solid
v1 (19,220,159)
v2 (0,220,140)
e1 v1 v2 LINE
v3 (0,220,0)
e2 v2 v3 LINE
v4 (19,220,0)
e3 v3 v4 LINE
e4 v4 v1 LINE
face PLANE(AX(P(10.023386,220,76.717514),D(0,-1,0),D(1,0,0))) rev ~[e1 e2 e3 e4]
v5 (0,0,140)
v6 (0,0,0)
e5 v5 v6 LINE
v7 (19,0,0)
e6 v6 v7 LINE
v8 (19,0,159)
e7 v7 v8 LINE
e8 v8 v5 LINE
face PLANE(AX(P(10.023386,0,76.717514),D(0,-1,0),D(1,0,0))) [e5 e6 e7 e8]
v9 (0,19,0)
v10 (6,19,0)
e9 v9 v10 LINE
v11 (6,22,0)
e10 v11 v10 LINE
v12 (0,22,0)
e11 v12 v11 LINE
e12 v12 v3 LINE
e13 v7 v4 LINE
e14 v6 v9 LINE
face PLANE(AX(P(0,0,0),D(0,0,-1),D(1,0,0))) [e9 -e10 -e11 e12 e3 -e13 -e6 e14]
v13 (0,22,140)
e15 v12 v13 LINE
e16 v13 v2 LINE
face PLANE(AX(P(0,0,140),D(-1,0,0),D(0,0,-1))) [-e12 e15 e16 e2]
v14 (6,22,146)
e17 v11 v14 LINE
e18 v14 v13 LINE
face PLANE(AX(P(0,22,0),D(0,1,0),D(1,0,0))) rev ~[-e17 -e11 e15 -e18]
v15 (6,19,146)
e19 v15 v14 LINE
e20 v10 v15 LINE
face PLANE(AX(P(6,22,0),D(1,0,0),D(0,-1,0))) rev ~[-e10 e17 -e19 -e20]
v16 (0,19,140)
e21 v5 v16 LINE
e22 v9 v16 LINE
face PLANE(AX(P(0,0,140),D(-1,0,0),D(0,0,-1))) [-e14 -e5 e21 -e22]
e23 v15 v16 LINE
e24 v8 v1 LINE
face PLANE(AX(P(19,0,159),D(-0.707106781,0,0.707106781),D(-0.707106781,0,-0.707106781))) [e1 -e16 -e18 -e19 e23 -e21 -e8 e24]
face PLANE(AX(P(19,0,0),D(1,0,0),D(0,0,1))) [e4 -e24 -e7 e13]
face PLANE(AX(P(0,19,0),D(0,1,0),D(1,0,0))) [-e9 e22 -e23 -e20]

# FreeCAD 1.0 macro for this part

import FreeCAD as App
import Part
import Sketcher
from FreeCAD import Vector
Q = App.Units.Quantity


def add_polygon(sketch, points):
    """Adds a closed chain of lines whose ends are joined by coincident constraints."""
    first, n = sketch.GeometryCount, len(points)
    for a, b in zip(points, points[1:] + points[:1]):
        sketch.addGeometry(Part.LineSegment(App.Vector(*a, 0), App.Vector(*b, 0)), False)
    for i in range(n):
        sketch.addConstraint(Sketcher.Constraint("Coincident", first + i, 2, first + (i + 1) % n, 1))

doc = App.newDocument("Part")
body = doc.addObject("PartDesign::Body", "Body")

sketch1 = body.newObject("Sketcher::SketchObject", "Sketch")
sketch1.AttachmentSupport = (doc.getObject("XZ_Plane"), [""])
sketch1.MapMode = "FlatFace"
add_polygon(sketch1, [(0, 140), (0, 0), (19, 0), (19, 159)])
sketch1.addConstraint(Sketcher.Constraint("Vertical", 0))
sketch1.addConstraint(Sketcher.Constraint("Horizontal", 1))
sketch1.addConstraint(Sketcher.Constraint("Vertical", 2))
sketch1.addConstraint(Sketcher.Constraint("Coincident", 0, 2, -1, 1))
sketch1.addConstraint(Sketcher.Constraint("DistanceX", 1, 1, 1, 2, Q("19 mm")))
sketch1.addConstraint(Sketcher.Constraint("DistanceY", 0, 2, 0, 1, Q("140 mm")))
sketch1.addConstraint(Sketcher.Constraint("DistanceY", 2, 1, 2, 2, Q("159 mm")))
pad1 = body.newObject("PartDesign::Pad", "Pad")
pad1.Profile = sketch1
pad1.Length = 220
pad1.Reversed = True

sketch2 = body.newObject("Sketcher::SketchObject", "Sketch001")
sketch2.AttachmentSupport = (doc.getObject("XY_Plane"), [""])
sketch2.MapMode = "FlatFace"
add_polygon(sketch2, [(0, 19), (0, 22), (6, 22), (6, 19)])
sketch2.addConstraint(Sketcher.Constraint("Vertical", 0))
sketch2.addConstraint(Sketcher.Constraint("Horizontal", 1))
sketch2.addConstraint(Sketcher.Constraint("Vertical", 2))
sketch2.addConstraint(Sketcher.Constraint("Horizontal", 3))
sketch2.addConstraint(Sketcher.Constraint("PointOnObject", 0, 2, -2))
sketch2.addConstraint(Sketcher.Constraint("DistanceX", 1, 1, 1, 2, Q("6 mm")))
sketch2.addConstraint(Sketcher.Constraint("DistanceY", 0, 1, 0, 2, Q("3 mm")))
sketch2.addConstraint(Sketcher.Constraint("DistanceY", -1, 1, 0, 2, Q("22 mm")))
pocket1 = body.newObject("PartDesign::Pocket", "Pocket")
pocket1.Profile = sketch2
pocket1.Type = "ThroughAll"
pocket1.Reversed = True

doc.recompute()
